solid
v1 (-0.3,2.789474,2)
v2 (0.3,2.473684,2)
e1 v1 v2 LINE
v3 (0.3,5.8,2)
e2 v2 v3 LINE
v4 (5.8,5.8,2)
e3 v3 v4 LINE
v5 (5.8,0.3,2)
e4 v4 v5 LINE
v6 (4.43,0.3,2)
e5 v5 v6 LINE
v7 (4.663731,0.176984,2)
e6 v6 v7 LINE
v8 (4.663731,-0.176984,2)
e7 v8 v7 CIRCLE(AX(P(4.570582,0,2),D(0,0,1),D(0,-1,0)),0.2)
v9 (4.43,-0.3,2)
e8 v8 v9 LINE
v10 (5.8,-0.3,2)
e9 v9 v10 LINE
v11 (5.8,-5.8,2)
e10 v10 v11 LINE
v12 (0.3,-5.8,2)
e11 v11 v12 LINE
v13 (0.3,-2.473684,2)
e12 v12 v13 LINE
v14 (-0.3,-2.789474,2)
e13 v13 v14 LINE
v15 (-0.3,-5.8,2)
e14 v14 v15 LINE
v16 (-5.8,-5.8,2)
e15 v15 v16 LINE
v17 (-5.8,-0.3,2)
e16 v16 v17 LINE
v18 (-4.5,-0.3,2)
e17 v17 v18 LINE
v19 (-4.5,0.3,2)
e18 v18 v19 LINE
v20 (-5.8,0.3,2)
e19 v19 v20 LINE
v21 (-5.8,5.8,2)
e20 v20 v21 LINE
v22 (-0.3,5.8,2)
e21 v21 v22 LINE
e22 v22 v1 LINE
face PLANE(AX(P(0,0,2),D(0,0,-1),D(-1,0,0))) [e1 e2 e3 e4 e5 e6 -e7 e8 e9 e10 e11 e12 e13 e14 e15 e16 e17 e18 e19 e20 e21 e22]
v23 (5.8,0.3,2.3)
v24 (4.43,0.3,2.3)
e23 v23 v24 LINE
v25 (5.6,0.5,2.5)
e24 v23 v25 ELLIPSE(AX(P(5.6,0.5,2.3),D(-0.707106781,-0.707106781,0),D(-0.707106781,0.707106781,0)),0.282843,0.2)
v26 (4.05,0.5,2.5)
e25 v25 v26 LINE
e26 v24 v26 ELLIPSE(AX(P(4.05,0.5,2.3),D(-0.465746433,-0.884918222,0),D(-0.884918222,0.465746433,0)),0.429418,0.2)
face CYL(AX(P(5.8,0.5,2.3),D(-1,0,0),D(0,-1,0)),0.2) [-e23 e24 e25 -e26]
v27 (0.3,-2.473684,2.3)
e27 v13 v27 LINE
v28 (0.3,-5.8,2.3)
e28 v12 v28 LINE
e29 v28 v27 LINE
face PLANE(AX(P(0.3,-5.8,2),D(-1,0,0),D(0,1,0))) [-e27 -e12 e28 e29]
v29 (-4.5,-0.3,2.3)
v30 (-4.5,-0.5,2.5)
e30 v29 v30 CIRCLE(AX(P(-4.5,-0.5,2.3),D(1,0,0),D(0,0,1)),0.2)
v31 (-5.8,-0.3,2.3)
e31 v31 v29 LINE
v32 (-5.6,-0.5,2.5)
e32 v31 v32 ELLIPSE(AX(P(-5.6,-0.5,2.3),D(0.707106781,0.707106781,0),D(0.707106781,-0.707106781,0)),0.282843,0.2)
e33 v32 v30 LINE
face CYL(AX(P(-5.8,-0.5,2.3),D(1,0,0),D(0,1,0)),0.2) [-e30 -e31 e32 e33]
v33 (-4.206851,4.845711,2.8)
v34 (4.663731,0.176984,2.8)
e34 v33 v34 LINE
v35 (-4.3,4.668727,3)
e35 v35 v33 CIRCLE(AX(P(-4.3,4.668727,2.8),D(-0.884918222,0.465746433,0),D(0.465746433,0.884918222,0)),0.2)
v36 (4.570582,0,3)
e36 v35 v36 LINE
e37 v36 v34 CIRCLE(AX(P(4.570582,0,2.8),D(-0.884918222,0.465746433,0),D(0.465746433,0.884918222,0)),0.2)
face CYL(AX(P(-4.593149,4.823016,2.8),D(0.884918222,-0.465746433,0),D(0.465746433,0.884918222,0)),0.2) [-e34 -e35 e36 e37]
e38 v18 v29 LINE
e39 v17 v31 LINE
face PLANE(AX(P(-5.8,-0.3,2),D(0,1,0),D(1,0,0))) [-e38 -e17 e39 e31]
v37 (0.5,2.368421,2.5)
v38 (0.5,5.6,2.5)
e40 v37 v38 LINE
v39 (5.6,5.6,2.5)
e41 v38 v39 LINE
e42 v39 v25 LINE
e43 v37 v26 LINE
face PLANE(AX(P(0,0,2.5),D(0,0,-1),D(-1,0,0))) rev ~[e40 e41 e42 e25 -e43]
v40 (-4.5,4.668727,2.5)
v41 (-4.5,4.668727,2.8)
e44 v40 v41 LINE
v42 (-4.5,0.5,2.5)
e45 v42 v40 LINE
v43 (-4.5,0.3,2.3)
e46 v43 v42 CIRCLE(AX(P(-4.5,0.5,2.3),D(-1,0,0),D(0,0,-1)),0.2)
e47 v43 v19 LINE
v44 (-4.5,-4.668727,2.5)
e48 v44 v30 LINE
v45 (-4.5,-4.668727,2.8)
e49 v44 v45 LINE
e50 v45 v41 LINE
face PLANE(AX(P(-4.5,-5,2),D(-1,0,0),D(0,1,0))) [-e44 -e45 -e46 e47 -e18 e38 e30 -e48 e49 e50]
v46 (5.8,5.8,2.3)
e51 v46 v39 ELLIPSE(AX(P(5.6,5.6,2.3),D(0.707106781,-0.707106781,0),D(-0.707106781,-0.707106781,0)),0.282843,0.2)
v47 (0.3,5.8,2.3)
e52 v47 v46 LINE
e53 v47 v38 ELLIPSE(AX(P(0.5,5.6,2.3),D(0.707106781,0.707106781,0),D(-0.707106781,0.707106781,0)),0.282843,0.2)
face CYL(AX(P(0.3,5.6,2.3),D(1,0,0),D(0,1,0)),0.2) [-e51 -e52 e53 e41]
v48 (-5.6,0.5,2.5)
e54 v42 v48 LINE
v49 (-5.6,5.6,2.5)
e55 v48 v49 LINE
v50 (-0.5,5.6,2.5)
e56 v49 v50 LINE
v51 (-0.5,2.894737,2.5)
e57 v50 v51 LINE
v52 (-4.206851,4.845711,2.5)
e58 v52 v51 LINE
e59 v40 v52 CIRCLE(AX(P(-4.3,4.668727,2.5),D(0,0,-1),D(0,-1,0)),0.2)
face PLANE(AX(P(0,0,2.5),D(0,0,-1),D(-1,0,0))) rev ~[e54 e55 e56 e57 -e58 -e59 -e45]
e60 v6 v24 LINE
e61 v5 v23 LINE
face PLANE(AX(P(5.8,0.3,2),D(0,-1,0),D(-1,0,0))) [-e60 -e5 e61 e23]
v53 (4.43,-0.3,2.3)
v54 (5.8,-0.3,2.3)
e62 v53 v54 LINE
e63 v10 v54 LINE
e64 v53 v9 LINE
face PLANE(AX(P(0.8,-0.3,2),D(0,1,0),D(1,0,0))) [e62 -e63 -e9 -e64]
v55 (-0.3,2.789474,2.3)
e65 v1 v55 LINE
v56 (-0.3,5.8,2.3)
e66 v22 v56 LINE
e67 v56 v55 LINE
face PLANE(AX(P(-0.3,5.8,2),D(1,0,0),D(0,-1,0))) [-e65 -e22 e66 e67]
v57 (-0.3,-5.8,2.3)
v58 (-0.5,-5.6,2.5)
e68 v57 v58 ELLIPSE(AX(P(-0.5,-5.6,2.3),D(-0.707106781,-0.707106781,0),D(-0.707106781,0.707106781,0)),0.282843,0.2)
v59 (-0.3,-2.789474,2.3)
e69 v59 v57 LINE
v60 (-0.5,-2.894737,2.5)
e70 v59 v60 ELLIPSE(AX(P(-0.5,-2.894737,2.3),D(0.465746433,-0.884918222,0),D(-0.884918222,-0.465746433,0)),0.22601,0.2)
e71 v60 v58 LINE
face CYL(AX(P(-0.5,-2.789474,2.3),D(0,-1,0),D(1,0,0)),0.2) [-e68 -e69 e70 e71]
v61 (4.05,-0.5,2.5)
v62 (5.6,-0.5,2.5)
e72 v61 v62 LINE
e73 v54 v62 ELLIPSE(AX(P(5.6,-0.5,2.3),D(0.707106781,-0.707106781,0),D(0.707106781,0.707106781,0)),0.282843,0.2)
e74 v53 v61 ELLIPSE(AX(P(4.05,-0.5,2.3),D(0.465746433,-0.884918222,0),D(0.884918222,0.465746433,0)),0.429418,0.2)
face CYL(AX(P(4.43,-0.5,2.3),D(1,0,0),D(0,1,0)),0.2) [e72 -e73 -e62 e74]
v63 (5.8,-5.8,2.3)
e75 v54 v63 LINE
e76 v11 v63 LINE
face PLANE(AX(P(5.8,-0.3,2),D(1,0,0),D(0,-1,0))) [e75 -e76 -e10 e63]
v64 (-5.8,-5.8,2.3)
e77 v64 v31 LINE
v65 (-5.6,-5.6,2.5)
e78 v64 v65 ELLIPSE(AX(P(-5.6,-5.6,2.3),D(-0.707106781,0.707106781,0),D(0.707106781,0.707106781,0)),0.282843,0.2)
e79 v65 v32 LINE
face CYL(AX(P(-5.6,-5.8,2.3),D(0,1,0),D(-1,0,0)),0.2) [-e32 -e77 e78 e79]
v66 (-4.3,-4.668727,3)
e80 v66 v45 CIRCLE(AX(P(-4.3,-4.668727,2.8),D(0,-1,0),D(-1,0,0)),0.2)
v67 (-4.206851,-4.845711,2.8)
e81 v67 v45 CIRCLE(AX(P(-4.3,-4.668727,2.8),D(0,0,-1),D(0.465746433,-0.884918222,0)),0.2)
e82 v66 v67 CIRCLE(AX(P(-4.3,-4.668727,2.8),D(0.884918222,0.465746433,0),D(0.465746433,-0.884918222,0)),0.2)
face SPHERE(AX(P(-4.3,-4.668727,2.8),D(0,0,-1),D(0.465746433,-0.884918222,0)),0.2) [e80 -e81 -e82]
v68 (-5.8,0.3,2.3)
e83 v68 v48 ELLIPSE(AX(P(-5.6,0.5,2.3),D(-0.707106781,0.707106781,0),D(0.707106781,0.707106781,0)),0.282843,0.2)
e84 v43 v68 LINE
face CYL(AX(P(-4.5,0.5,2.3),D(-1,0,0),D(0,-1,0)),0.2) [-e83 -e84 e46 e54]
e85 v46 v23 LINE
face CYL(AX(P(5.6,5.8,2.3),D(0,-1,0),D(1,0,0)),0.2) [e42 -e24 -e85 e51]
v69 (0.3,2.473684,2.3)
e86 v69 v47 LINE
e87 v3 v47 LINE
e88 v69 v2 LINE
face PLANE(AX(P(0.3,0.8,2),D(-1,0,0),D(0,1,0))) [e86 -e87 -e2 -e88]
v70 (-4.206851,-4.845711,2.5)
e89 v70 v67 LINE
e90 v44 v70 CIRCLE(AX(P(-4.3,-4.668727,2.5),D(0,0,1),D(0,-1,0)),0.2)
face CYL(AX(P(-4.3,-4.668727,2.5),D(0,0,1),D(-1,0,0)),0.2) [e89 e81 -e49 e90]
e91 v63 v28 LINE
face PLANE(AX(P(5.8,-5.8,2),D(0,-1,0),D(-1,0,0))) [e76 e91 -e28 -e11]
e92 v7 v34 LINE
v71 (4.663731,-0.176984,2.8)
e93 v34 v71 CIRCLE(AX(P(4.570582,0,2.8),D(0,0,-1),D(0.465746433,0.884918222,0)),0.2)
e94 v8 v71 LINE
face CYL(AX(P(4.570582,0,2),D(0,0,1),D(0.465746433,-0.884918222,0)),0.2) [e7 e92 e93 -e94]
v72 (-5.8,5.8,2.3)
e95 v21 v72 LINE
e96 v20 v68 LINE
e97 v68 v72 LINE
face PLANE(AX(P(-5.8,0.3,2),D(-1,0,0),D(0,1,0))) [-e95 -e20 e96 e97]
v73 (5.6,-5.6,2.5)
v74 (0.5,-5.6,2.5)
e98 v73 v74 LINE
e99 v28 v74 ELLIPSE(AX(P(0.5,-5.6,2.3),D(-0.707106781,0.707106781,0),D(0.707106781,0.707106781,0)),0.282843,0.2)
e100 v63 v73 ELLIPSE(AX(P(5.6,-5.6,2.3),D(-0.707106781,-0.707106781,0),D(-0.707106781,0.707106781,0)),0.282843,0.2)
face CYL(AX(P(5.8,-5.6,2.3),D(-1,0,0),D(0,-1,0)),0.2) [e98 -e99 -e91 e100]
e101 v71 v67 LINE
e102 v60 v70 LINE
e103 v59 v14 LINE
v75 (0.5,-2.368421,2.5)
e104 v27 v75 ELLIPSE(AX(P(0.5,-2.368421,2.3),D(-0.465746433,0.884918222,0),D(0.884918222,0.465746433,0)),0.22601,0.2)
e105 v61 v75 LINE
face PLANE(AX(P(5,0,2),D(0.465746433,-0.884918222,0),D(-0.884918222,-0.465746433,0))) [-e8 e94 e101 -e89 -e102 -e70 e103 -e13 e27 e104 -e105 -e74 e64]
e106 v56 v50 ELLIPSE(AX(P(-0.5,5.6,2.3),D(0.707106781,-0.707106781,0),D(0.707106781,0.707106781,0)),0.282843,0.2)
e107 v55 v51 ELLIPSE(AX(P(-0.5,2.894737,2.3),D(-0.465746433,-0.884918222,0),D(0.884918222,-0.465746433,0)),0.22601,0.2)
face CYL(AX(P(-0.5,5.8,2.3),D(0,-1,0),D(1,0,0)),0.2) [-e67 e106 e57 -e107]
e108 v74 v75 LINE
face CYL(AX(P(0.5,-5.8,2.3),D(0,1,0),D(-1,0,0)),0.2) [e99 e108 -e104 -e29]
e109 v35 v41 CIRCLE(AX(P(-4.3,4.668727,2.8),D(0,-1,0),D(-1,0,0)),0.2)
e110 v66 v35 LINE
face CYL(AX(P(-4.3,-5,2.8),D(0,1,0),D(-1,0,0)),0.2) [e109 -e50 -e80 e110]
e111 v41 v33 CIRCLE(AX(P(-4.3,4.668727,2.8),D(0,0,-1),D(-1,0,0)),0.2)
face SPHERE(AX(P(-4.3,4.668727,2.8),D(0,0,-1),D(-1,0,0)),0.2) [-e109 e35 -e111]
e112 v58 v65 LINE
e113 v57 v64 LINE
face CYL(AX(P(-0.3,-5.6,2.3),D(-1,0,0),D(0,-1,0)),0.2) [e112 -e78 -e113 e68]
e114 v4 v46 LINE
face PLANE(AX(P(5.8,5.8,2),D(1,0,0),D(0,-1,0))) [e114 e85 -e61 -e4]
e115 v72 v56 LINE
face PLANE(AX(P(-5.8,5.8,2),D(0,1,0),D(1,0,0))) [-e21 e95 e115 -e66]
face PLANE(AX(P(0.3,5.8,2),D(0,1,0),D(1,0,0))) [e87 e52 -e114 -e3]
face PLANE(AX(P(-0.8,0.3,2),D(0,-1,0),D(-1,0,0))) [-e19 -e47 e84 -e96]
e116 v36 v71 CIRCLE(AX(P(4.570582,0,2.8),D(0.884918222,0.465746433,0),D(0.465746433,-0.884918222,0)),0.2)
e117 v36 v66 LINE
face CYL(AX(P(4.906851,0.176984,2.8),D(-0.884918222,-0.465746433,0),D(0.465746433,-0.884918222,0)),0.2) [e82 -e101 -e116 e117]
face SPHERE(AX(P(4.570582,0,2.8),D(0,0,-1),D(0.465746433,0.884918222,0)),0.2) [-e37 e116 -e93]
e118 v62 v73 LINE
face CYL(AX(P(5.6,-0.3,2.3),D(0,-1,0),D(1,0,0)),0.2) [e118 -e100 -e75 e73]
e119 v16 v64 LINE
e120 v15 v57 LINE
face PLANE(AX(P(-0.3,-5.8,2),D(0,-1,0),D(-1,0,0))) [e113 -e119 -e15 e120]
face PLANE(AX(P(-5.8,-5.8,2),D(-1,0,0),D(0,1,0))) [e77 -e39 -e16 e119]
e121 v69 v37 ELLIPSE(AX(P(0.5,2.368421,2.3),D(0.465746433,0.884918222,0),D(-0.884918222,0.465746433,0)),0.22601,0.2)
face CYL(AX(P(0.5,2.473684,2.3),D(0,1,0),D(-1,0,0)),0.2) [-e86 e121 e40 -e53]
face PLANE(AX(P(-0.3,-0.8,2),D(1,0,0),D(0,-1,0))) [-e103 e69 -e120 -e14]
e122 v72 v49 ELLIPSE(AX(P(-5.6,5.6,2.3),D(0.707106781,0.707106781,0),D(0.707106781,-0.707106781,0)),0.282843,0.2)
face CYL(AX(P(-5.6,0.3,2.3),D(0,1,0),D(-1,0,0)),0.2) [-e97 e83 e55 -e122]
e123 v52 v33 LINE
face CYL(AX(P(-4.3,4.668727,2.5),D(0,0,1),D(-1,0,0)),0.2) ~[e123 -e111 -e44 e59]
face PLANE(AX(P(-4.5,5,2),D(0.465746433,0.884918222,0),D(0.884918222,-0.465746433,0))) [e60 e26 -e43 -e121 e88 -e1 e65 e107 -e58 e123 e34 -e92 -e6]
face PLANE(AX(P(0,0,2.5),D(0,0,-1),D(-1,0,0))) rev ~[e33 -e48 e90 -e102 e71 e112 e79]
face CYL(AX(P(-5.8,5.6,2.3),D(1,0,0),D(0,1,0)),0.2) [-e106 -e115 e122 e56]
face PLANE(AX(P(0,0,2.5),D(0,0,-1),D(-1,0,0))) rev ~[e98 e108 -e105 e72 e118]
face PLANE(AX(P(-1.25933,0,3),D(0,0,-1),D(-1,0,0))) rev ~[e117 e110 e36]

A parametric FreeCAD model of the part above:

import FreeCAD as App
import Part
import Sketcher
from FreeCAD import Vector


def edges_at(feature, points):
    """Names of the edges that pass closest to the given points."""
    edges = feature.Shape.Edges
    near = lambda p: min(range(len(edges)), key=lambda i: edges[i].distToShape(Part.Vertex(*p))[0])
    return sorted({f"Edge{near(p) + 1}" for p in points})

doc = App.newDocument("Part")
params = doc.addObject("Spreadsheet::Sheet", "Params")
for row, (alias, value) in enumerate([
    ("sketch1_height", "10 mm"),
    ("pad1_length", "1 mm"),
    ("sketch2_width", "5 mm"),
    ("sketch2_width2", "5.5 mm"),
    ("sketch2_width3", "0.6 mm"),
    ("pad2_length", "0.5 mm"),
    ("fillet_radius", "0.2 mm"),
], start=1):
    params.set(f"A{row}", alias)
    params.set(f"B{row}", "=" + value)
    params.setAlias(f"B{row}", alias)

body = doc.addObject("PartDesign::Body", "Body")

# Sketch on XY plane
sketch1 = body.newObject("Sketcher::SketchObject", "Sketch")
sketch1.AttachmentSupport = (doc.getObject("XY_Plane"), [""])
sketch1.MapMode = "FlatFace"
sketch1.addGeometry([
    Part.LineSegment(Vector(5, 0, 0), Vector(-4, 5, 0)),
    Part.LineSegment(Vector(-4, 5, 0), Vector(-4, -5, 0)),
    Part.LineSegment(Vector(-4, -5, 0), Vector(5, 0, 0)),
], False)
sketch1.addConstraint([
    Sketcher.Constraint("Coincident", 0, 2, 1, 1),
    Sketcher.Constraint("Coincident", 1, 2, 2, 1),
    Sketcher.Constraint("Coincident", 2, 2, 0, 1),
    Sketcher.Constraint("Vertical", 1),
    Sketcher.Constraint("PointOnObject", 2, 2, -1),
    Sketcher.Constraint("Equal", 0, 2),
    Sketcher.Constraint("DistanceY", 1, 2, 1, 1, 10.0),
    Sketcher.Constraint("DistanceX", -1, 1, 2, 2, 5.0),
    Sketcher.Constraint("DistanceX", 0, 2, -1, 1, 4.5),
])
sketch1.setExpression("Constraints[6]", "Params.sketch1_height")
pad1 = body.newObject("PartDesign::Pad", "Pad")
pad1.Profile = sketch1
pad1.setExpression("Length", "Params.pad1_length")
body2 = doc.addObject("PartDesign::Body", "Body001")
doc.recompute()

body.Placement = App.Placement(Vector(0, 0, 2), App.Rotation(Vector(0, 0, 1), 0))
boolean = body2.newObject("PartDesign::Boolean", "Boolean")
boolean.Type = "Fuse"
boolean.addObjects([body])
body3 = doc.addObject("PartDesign::Body", "Body002")

# Sketch on XY plane
sketch2 = body3.newObject("Sketcher::SketchObject", "Sketch001")
sketch2.AttachmentSupport = (doc.getObject("XY_Plane002"), [""])
sketch2.MapMode = "FlatFace"
sketch2.AttachmentOffset = App.Placement(Vector(0, 0, 2), App.Rotation())
sketch2.addGeometry([
    Part.LineSegment(Vector(-0.3, 5.8, 0), Vector(-5.8, 5.8, 0)),  # 0
    Part.LineSegment(Vector(-5.8, 5.8, 0), Vector(-5.8, 0.3, 0)),  # 1
    Part.LineSegment(Vector(-5.8, 0.3, 0), Vector(-0.8, 0.3, 0)),  # 2
    Part.LineSegment(Vector(-0.8, 0.3, 0), Vector(-0.8, -0.3, 0)),  # 3
    Part.LineSegment(Vector(-0.8, -0.3, 0), Vector(-5.8, -0.3, 0)),  # 4
    Part.LineSegment(Vector(-5.8, -0.3, 0), Vector(-5.8, -5.8, 0)),  # 5
    Part.LineSegment(Vector(-5.8, -5.8, 0), Vector(-0.3, -5.8, 0)),  # 6
    Part.LineSegment(Vector(-0.3, -5.8, 0), Vector(-0.3, -0.8, 0)),  # 7
    Part.LineSegment(Vector(-0.3, -0.8, 0), Vector(0.3, -0.8, 0)),  # 8
    Part.LineSegment(Vector(0.3, -0.8, 0), Vector(0.3, -5.8, 0)),  # 9
    Part.LineSegment(Vector(0.3, -5.8, 0), Vector(5.8, -5.8, 0)),  # 10
    Part.LineSegment(Vector(5.8, -5.8, 0), Vector(5.8, -0.3, 0)),  # 11
    Part.LineSegment(Vector(5.8, -0.3, 0), Vector(0.8, -0.3, 0)),  # 12
    Part.LineSegment(Vector(0.8, -0.3, 0), Vector(0.8, 0.3, 0)),  # 13
    Part.LineSegment(Vector(0.8, 0.3, 0), Vector(5.8, 0.3, 0)),  # 14
    Part.LineSegment(Vector(5.8, 0.3, 0), Vector(5.8, 5.8, 0)),  # 15
    Part.LineSegment(Vector(5.8, 5.8, 0), Vector(0.3, 5.8, 0)),  # 16
    Part.LineSegment(Vector(0.3, 5.8, 0), Vector(0.3, 0.8, 0)),  # 17
    Part.LineSegment(Vector(0.3, 0.8, 0), Vector(-0.3, 0.8, 0)),  # 18
    Part.LineSegment(Vector(-0.3, 0.8, 0), Vector(-0.3, 5.8, 0)),  # 19
], False)
sketch2.addConstraint([
    Sketcher.Constraint("Coincident", 0, 2, 1, 1),
    Sketcher.Constraint("Coincident", 1, 2, 2, 1),
    Sketcher.Constraint("Coincident", 2, 2, 3, 1),
    Sketcher.Constraint("Coincident", 3, 2, 4, 1),
    Sketcher.Constraint("Coincident", 4, 2, 5, 1),
    Sketcher.Constraint("Coincident", 5, 2, 6, 1),
    Sketcher.Constraint("Coincident", 6, 2, 7, 1),
    Sketcher.Constraint("Coincident", 7, 2, 8, 1),
    Sketcher.Constraint("Coincident", 8, 2, 9, 1),
    Sketcher.Constraint("Coincident", 9, 2, 10, 1),
    Sketcher.Constraint("Coincident", 10, 2, 11, 1),
    Sketcher.Constraint("Coincident", 11, 2, 12, 1),
    Sketcher.Constraint("Coincident", 12, 2, 13, 1),
    Sketcher.Constraint("Coincident", 13, 2, 14, 1),
    Sketcher.Constraint("Coincident", 14, 2, 15, 1),
    Sketcher.Constraint("Coincident", 15, 2, 16, 1),
    Sketcher.Constraint("Coincident", 16, 2, 17, 1),
    Sketcher.Constraint("Coincident", 17, 2, 18, 1),
    Sketcher.Constraint("Coincident", 18, 2, 19, 1),
    Sketcher.Constraint("Coincident", 19, 2, 0, 1),
    Sketcher.Constraint("Horizontal", 0),
    Sketcher.Constraint("Vertical", 1),
    Sketcher.Constraint("Horizontal", 2),
    Sketcher.Constraint("Vertical", 3),
    Sketcher.Constraint("Horizontal", 4),
    Sketcher.Constraint("Vertical", 5),
    Sketcher.Constraint("Horizontal", 6),
    Sketcher.Constraint("Vertical", 7),
    Sketcher.Constraint("Horizontal", 8),
    Sketcher.Constraint("Vertical", 9),
    Sketcher.Constraint("Horizontal", 10),
    Sketcher.Constraint("Vertical", 11),
    Sketcher.Constraint("Horizontal", 12),
    Sketcher.Constraint("Vertical", 13),
    Sketcher.Constraint("Horizontal", 14),
    Sketcher.Constraint("Vertical", 15),
    Sketcher.Constraint("Horizontal", 16),
    Sketcher.Constraint("Vertical", 17),
    Sketcher.Constraint("Horizontal", 18),
    Sketcher.Constraint("Vertical", 19),
    Sketcher.Constraint("Symmetric", 0, 2, 10, 2, -1, 1),
    Sketcher.Constraint("Symmetric", 2, 2, 12, 2, -1, 1),
    Sketcher.Constraint("Symmetric", 4, 2, 14, 2, -1, 1),
    Sketcher.Constraint("Symmetric", 6, 2, 16, 2, -1, 1),
    Sketcher.Constraint("Symmetric", 8, 2, 18, 2, -1, 1),
    Sketcher.Constraint("Symmetric", 6, 2, 9, 2, -2),
    Sketcher.Constraint("Symmetric", 4, 2, 11, 2, -2),
    Sketcher.Constraint("Equal", 16, 1),
    Sketcher.Constraint("Equal", 18, 3),
    Sketcher.Constraint("Equal", 14, 7),
    Sketcher.Constraint("DistanceX", 2, 1, 2, 2, 5.0),
    Sketcher.Constraint("DistanceX", 0, 2, 0, 1, 5.5),
    Sketcher.Constraint("DistanceX", 8, 1, 8, 2, 0.6),
])
sketch2.setExpression("Constraints[50]", "Params.sketch2_width")
sketch2.setExpression("Constraints[51]", "Params.sketch2_width2")
sketch2.setExpression("Constraints[52]", "Params.sketch2_width3")
pad2 = body3.newObject("PartDesign::Pad", "Pad001")
pad2.Profile = sketch2
pad2.setExpression("Length", "Params.pad2_length")
doc.recompute()

boolean2 = body3.newObject("PartDesign::Boolean", "Boolean001")
boolean2.Type = "Fuse"
boolean2.addObjects([body2])
doc.recompute()

fillet = body3.newObject("PartDesign::Fillet", "Fillet")
fillet.Base = (boolean2, edges_at(boolean2, [
    (-3.05, 5.8, 2.5),
    (-5.8, 3.05, 2.5),
    (-0.3, 4.295, 2.5),
    (-5.15, 0.3, 2.5),
    (5, 0, 2.5),
    (0.25, 2.5, 3),
    (-4.5, 5, 2.75),
    (-4.5, 0, 3),
    (-4.5, -5, 2.75),
    (0.3, 4.137, 2.5),
    (5.115, 0.3, 2.5),
    (5.8, 3.05, 2.5),
    (3.05, 5.8, 2.5),
    (0.25, -2.5, 3),
    (-5.15, -0.3, 2.5),
    (-5.8, -3.05, 2.5),
    (-3.05, -5.8, 2.5),
    (-0.3, -4.295, 2.5),
    (5.115, -0.3, 2.5),
    (0.3, -4.137, 2.5),
    (3.05, -5.8, 2.5),
    (5.8, -3.05, 2.5),
]))
fillet.setExpression("Radius", "Params.fillet_radius")

doc.recompute()
